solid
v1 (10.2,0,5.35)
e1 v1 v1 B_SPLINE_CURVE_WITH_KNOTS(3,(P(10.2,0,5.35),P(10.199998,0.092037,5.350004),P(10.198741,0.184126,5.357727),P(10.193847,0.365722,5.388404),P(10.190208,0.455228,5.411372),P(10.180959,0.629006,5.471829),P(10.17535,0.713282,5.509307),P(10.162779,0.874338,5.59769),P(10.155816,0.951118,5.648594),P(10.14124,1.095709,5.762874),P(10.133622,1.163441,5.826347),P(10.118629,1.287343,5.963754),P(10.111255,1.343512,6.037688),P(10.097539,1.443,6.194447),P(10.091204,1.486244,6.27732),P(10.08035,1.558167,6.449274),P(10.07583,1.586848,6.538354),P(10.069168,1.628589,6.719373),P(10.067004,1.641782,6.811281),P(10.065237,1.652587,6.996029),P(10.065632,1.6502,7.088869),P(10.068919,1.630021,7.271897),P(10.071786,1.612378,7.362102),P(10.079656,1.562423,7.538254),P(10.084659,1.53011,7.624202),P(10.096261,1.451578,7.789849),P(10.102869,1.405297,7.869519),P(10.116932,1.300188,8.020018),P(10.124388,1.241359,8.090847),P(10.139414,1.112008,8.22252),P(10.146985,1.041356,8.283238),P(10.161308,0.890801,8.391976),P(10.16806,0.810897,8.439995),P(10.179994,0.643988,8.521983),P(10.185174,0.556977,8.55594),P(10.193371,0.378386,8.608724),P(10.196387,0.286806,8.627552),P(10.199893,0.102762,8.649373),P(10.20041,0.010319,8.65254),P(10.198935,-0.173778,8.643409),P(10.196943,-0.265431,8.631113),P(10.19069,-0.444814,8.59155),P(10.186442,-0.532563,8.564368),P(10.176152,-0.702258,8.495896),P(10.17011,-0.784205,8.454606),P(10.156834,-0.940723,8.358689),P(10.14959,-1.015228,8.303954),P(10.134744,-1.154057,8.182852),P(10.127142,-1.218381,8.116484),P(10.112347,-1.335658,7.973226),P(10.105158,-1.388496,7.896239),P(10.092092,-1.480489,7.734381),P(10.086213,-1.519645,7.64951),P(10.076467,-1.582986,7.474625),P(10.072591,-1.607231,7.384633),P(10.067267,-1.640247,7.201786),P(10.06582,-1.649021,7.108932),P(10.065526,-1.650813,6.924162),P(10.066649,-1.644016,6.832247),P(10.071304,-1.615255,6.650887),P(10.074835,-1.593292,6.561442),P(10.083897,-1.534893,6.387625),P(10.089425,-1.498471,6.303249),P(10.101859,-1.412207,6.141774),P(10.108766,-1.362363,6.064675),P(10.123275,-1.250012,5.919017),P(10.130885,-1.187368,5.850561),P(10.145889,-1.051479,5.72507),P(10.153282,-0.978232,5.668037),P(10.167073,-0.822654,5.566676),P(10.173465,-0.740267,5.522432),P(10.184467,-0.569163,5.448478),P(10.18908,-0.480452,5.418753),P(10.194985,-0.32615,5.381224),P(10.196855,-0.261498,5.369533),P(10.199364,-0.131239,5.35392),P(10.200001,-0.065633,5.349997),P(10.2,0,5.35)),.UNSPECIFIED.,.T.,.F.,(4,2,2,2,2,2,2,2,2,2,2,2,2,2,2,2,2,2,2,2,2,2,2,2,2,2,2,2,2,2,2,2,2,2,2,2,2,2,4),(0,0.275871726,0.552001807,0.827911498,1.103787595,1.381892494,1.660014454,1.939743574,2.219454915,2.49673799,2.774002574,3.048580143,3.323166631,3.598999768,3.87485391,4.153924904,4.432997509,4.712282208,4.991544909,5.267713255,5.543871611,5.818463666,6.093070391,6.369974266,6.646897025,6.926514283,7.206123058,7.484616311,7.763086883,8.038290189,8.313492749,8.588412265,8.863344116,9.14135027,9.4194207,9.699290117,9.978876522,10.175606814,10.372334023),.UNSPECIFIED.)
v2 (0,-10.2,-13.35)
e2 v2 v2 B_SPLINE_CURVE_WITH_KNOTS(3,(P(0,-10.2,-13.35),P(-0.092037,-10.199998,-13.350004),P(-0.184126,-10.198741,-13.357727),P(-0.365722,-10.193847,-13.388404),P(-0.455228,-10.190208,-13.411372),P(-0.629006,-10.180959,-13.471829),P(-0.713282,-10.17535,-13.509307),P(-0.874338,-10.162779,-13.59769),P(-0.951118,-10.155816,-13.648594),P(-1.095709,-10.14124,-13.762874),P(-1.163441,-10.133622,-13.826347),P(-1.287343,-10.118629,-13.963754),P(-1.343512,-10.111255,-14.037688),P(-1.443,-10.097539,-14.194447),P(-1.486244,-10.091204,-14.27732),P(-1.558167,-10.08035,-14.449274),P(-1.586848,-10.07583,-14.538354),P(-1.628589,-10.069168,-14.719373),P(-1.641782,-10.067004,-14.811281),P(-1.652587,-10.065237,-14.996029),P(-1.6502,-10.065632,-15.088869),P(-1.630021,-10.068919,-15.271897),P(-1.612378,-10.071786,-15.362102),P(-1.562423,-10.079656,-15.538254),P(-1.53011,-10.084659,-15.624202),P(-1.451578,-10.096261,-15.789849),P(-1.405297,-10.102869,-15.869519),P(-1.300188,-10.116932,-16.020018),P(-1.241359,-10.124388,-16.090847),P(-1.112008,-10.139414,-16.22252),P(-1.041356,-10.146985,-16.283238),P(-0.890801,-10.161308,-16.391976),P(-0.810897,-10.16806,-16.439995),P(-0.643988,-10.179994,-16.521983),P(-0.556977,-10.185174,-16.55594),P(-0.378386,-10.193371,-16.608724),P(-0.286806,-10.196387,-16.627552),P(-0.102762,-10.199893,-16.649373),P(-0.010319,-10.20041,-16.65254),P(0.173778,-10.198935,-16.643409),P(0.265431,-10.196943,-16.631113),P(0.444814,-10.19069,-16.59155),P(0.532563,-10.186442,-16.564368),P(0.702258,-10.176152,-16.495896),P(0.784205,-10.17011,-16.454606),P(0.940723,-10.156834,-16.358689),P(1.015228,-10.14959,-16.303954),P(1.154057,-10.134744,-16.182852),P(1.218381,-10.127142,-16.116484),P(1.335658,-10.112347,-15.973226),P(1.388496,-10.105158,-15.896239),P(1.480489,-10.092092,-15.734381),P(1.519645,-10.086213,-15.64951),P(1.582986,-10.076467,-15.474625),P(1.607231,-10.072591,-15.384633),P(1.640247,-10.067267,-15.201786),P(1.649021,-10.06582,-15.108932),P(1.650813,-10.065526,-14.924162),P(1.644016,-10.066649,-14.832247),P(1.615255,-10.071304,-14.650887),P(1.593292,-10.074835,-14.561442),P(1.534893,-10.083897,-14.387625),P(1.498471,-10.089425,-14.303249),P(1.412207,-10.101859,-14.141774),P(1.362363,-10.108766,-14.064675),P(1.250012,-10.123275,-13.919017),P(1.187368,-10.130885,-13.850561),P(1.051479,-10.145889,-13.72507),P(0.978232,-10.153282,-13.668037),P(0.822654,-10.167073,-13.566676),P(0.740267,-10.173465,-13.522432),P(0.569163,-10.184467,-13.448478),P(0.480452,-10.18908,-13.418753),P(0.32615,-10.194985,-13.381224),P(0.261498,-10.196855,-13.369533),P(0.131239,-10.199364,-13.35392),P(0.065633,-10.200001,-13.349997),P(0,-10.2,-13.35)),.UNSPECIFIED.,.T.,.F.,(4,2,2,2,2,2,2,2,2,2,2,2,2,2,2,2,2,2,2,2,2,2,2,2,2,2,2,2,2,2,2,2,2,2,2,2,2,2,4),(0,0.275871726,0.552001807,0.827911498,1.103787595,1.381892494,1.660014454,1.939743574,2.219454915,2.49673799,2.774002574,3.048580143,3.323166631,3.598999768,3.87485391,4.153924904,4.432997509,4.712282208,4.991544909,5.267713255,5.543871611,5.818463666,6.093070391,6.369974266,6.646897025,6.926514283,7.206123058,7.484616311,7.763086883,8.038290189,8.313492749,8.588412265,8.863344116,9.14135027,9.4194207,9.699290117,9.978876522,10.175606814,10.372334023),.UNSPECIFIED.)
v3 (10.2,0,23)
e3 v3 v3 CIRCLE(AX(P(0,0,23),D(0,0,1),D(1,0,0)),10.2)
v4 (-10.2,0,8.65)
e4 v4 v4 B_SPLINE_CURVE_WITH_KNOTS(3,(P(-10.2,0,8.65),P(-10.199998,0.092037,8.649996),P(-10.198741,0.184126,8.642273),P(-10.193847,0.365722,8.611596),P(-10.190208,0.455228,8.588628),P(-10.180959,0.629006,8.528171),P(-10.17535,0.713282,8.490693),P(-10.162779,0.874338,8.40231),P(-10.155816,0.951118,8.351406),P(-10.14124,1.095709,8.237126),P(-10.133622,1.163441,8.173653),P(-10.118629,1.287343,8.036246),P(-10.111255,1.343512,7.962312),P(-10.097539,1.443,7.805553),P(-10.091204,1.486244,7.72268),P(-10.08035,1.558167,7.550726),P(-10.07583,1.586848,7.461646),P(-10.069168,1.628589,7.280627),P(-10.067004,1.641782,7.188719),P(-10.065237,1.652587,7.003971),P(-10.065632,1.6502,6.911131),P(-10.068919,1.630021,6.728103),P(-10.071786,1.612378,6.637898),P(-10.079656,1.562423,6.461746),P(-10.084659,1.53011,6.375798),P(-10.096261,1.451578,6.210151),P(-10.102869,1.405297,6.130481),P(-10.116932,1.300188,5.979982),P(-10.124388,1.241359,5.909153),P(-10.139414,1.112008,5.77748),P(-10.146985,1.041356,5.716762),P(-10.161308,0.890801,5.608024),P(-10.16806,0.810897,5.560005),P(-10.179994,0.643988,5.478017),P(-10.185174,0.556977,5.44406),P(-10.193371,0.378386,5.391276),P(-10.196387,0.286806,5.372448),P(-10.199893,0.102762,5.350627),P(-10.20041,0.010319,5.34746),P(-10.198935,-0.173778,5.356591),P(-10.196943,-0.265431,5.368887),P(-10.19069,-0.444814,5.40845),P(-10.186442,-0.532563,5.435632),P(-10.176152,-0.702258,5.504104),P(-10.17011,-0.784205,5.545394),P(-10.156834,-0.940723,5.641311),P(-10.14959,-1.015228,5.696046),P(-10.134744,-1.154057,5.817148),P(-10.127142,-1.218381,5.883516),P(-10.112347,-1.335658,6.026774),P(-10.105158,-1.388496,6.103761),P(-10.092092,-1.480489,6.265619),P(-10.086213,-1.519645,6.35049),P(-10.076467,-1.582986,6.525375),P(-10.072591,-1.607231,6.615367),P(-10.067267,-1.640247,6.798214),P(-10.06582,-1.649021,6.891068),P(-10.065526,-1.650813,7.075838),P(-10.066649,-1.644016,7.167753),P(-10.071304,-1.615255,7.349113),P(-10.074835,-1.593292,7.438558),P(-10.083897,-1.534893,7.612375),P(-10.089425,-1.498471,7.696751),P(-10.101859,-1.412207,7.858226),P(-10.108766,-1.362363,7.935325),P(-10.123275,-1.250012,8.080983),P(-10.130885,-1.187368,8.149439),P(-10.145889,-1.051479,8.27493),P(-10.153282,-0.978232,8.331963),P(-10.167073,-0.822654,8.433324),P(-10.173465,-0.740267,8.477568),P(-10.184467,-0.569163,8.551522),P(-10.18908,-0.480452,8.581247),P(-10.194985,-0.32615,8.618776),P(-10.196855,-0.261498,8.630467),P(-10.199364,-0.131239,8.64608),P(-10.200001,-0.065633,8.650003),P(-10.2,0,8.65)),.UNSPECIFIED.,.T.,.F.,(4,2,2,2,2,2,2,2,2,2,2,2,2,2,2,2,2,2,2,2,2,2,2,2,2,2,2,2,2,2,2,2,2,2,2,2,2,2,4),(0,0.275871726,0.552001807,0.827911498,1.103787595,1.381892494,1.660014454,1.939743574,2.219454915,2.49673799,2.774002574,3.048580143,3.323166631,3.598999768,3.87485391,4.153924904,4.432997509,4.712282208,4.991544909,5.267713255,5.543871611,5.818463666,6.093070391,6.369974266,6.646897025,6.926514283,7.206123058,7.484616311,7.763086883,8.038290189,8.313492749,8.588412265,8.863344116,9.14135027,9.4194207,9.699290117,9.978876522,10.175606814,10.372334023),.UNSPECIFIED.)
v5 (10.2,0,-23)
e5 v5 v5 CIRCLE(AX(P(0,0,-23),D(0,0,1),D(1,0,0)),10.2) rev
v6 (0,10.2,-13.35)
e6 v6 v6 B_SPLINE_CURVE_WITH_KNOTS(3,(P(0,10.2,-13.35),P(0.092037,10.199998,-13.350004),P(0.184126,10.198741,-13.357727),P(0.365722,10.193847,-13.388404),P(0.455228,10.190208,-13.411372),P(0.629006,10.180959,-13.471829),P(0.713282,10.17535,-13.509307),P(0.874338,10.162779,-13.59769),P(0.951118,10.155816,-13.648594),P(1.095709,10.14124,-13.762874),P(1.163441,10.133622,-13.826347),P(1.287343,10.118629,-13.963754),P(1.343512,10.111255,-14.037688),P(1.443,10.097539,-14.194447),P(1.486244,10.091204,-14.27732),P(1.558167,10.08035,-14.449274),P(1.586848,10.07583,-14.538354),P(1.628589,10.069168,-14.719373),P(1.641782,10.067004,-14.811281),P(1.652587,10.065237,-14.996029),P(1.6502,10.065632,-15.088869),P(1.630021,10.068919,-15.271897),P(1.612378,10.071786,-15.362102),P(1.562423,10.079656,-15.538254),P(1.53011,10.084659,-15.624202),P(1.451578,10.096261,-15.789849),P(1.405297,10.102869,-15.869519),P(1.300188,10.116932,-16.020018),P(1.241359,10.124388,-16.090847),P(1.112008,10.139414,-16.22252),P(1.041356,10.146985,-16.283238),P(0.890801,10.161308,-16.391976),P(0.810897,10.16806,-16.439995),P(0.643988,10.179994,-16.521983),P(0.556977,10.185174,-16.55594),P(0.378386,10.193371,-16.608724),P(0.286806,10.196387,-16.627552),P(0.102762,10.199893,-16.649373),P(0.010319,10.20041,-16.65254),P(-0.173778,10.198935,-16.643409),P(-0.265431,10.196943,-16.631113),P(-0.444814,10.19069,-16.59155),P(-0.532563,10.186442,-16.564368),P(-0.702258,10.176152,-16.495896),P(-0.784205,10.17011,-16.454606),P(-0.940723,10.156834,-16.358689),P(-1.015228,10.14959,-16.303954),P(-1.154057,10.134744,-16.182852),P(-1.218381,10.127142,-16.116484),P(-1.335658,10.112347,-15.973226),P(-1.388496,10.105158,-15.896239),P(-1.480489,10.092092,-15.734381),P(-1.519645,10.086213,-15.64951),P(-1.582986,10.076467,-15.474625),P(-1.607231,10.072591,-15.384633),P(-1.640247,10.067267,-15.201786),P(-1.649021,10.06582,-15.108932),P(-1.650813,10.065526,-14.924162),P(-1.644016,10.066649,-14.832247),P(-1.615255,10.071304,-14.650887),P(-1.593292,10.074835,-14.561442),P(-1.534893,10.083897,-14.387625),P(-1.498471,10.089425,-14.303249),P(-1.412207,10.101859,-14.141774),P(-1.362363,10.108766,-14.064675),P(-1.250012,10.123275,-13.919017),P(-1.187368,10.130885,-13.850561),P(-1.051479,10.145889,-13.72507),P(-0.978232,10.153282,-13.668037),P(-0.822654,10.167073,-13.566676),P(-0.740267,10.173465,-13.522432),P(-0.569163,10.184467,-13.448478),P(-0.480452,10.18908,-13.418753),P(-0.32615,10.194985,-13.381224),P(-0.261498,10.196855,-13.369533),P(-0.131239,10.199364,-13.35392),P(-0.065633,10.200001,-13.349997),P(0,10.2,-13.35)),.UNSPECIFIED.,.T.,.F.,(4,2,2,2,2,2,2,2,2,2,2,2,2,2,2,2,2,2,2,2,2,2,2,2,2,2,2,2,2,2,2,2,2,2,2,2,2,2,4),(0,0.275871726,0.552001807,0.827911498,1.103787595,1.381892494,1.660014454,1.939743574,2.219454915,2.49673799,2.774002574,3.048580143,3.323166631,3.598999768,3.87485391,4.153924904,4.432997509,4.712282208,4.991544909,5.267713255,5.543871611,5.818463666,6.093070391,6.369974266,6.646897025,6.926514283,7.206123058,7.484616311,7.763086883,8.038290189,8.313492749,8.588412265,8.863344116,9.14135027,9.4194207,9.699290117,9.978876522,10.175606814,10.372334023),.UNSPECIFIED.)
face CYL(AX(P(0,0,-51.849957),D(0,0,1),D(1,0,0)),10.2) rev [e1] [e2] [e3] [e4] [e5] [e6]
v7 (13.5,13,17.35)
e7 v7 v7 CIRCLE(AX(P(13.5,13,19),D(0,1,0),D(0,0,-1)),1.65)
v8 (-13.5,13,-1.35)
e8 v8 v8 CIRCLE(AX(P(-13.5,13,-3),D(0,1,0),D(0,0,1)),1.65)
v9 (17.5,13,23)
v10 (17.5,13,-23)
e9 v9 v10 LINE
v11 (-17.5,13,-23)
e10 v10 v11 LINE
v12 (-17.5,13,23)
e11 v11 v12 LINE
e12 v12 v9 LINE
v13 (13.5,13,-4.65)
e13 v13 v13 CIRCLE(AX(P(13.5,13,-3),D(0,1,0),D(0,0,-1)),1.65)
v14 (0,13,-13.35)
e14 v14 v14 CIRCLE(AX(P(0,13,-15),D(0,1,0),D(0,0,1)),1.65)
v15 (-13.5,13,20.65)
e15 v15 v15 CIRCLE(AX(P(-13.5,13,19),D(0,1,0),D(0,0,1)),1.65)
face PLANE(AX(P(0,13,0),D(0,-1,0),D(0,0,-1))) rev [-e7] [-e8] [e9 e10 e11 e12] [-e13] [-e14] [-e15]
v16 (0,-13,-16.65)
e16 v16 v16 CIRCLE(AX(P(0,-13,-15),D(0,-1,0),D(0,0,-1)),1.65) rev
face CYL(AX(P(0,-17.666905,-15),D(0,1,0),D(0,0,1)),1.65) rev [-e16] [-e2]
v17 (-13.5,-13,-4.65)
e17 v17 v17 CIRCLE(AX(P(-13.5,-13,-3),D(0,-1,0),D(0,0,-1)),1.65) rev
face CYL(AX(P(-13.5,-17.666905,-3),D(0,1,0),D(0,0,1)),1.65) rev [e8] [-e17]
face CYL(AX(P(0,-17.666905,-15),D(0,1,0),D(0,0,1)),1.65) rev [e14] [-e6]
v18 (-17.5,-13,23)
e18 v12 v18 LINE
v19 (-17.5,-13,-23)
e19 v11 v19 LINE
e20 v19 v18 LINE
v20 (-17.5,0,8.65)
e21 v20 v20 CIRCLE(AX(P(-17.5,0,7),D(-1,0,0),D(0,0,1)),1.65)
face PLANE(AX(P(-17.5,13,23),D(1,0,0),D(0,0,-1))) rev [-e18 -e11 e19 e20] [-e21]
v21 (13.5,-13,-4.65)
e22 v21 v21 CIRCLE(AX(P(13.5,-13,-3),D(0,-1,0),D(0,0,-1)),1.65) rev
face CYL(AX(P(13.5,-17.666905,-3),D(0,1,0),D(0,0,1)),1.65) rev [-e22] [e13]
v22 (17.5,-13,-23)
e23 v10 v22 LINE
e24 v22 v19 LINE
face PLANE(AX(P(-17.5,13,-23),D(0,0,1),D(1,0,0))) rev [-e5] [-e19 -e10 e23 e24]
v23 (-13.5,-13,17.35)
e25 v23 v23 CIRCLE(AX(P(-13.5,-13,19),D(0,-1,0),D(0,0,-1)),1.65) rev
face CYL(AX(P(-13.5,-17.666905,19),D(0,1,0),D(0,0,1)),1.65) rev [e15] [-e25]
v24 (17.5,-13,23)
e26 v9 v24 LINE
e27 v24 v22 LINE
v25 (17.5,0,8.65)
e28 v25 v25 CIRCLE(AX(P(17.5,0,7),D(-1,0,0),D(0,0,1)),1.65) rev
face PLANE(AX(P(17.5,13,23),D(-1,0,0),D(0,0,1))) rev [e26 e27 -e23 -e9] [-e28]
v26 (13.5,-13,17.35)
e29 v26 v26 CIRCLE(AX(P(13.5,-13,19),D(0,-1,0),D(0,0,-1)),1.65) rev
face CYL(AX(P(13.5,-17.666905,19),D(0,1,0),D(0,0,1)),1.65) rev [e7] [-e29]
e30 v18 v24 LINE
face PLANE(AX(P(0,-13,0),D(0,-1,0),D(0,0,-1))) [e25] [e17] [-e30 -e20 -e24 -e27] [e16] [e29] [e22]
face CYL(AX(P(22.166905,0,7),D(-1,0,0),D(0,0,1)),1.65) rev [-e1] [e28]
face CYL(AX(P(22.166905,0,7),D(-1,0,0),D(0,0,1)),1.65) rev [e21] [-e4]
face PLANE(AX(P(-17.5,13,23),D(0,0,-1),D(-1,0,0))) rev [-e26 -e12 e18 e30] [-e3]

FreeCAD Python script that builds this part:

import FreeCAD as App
import Part
import Sketcher

V = App.Vector
Q = App.Units.Quantity

doc = App.newDocument("Part")
body = doc.addObject("PartDesign::Body", "Body")

# Sketch on XZ plane
sketch1 = body.newObject("Sketcher::SketchObject", "Sketch")
sketch1.AttachmentSupport = (doc.getObject("XZ_Plane"), [""])
sketch1.MapMode = "FlatFace"
sketch1.addGeometry(Part.LineSegment(V(-18, -23, 0), V(-18, 23, 0)), False)
sketch1.addGeometry(Part.LineSegment(V(-18, 23, 0), V(18, 23, 0)), False)
sketch1.addGeometry(Part.LineSegment(V(18, 23, 0), V(18, -23, 0)), False)
sketch1.addGeometry(Part.LineSegment(V(18, -23, 0), V(-18, -23, 0)), False)
sketch1.addConstraint(Sketcher.Constraint("Coincident", 0, 2, 1, 1))
sketch1.addConstraint(Sketcher.Constraint("Coincident", 1, 2, 2, 1))
sketch1.addConstraint(Sketcher.Constraint("Coincident", 2, 2, 3, 1))
sketch1.addConstraint(Sketcher.Constraint("Coincident", 3, 2, 0, 1))
sketch1.addConstraint(Sketcher.Constraint("Vertical", 0))
sketch1.addConstraint(Sketcher.Constraint("Horizontal", 1))
sketch1.addConstraint(Sketcher.Constraint("Vertical", 2))
sketch1.addConstraint(Sketcher.Constraint("Horizontal", 3))
sketch1.addConstraint(Sketcher.Constraint("Symmetric", 0, 2, 2, 2, -1, 1))
sketch1.addConstraint(Sketcher.Constraint("DistanceX", 1, 1, 1, 2, Q("35 mm")))
sketch1.addConstraint(Sketcher.Constraint("DistanceY", 0, 1, 0, 2, Q("46 mm")))
pad1 = body.newObject("PartDesign::Pad", "Pad")
pad1.Profile = sketch1
pad1.Length = 26
pad1.Midplane = True

# Sketch on XZ plane
sketch2 = body.newObject("Sketcher::SketchObject", "Sketch001")
sketch2.AttachmentSupport = (doc.getObject("XZ_Plane"), [""])
sketch2.MapMode = "FlatFace"
sketch2.AttachmentOffset = App.Placement(V(0, 0, -13), App.Rotation())
sketch2.addGeometry(Part.Circle(V(-13.5, -3, 0), V(0, 0, 1), 1.6), False)
sketch2.addGeometry(Part.Circle(V(-13.5, 19, 0), V(0, 0, 1), 1.6), False)
sketch2.addGeometry(Part.Circle(V(13.5, 19, 0), V(0, 0, 1), 1.6), False)
sketch2.addGeometry(Part.Circle(V(13.5, -3, 0), V(0, 0, 1), 1.6), False)
sketch2.addConstraint(Sketcher.Constraint("Equal", 0, 1))
sketch2.addConstraint(Sketcher.Constraint("Equal", 1, 2))
sketch2.addConstraint(Sketcher.Constraint("Equal", 2, 3))
sketch2.addConstraint(Sketcher.Constraint("Symmetric", 1, 3, 2, 3, -2))
sketch2.addConstraint(Sketcher.Constraint("Symmetric", 0, 3, 3, 3, -2))
sketch2.addConstraint(Sketcher.Constraint("Vertical", 0, 3, 1, 3))
sketch2.addConstraint(Sketcher.Constraint("Diameter", 0, Q("3.3 mm")))
sketch2.addConstraint(Sketcher.Constraint("DistanceY", 0, 3, -1, 1, Q("3 mm")))
sketch2.addConstraint(Sketcher.Constraint("DistanceY", -1, 1, 1, 3, Q("19 mm")))
sketch2.addConstraint(Sketcher.Constraint("DistanceX", 1, 3, 2, 3, Q("27 mm")))
pocket1 = body.newObject("PartDesign::Pocket", "Pocket")
pocket1.Profile = sketch2
pocket1.Length = 26
pocket1.Reversed = True

# Sketch on XY plane
sketch3 = body.newObject("Sketcher::SketchObject", "Sketch002")
sketch3.AttachmentSupport = (doc.getObject("XY_Plane"), [""])
sketch3.MapMode = "FlatFace"
sketch3.AttachmentOffset = App.Placement(V(0, 0, 23), App.Rotation())
sketch3.addGeometry(Part.Circle(V(0, 0, 0), V(0, 0, 1), 10), False)
sketch3.addConstraint(Sketcher.Constraint("Coincident", 0, 3, -1, 1))
sketch3.addConstraint(Sketcher.Constraint("Diameter", 0, Q("20.4 mm")))
pocket2 = body.newObject("PartDesign::Pocket", "Pocket001")
pocket2.Profile = sketch3
pocket2.Length = 46

# Sketch on XZ plane
sketch4 = body.newObject("Sketcher::SketchObject", "Sketch003")
sketch4.AttachmentSupport = (doc.getObject("XZ_Plane"), [""])
sketch4.MapMode = "FlatFace"
sketch4.AttachmentOffset = App.Placement(V(0, 0, -13), App.Rotation())
sketch4.addGeometry(Part.Circle(V(0, -15, 0), V(0, 0, 1), 1.6), False)
sketch4.addConstraint(Sketcher.Constraint("PointOnObject", 0, 3, -2))
sketch4.addConstraint(Sketcher.Constraint("Diameter", 0, Q("3.3 mm")))
sketch4.addConstraint(Sketcher.Constraint("DistanceY", 0, 3, -1, 1, Q("15 mm")))
pocket3 = body.newObject("PartDesign::Pocket", "Pocket002")
pocket3.Profile = sketch4
pocket3.Length = 26
pocket3.Reversed = True

# Sketch on YZ plane
sketch5 = body.newObject("Sketcher::SketchObject", "Sketch004")
sketch5.AttachmentSupport = (doc.getObject("YZ_Plane"), [""])
sketch5.MapMode = "FlatFace"
sketch5.AttachmentOffset = App.Placement(V(0, 0, -17.5), App.Rotation())
sketch5.addGeometry(Part.Circle(V(0, 7, 0), V(0, 0, 1), 1.6), False)
sketch5.addConstraint(Sketcher.Constraint("PointOnObject", 0, 3, -2))
sketch5.addConstraint(Sketcher.Constraint("Diameter", 0, Q("3.3 mm")))
sketch5.addConstraint(Sketcher.Constraint("DistanceY", -1, 1, 0, 3, Q("7 mm")))
pocket4 = body.newObject("PartDesign::Pocket", "Pocket003")
pocket4.Profile = sketch5
pocket4.Length = 35
pocket4.Reversed = True

doc.recompute()
